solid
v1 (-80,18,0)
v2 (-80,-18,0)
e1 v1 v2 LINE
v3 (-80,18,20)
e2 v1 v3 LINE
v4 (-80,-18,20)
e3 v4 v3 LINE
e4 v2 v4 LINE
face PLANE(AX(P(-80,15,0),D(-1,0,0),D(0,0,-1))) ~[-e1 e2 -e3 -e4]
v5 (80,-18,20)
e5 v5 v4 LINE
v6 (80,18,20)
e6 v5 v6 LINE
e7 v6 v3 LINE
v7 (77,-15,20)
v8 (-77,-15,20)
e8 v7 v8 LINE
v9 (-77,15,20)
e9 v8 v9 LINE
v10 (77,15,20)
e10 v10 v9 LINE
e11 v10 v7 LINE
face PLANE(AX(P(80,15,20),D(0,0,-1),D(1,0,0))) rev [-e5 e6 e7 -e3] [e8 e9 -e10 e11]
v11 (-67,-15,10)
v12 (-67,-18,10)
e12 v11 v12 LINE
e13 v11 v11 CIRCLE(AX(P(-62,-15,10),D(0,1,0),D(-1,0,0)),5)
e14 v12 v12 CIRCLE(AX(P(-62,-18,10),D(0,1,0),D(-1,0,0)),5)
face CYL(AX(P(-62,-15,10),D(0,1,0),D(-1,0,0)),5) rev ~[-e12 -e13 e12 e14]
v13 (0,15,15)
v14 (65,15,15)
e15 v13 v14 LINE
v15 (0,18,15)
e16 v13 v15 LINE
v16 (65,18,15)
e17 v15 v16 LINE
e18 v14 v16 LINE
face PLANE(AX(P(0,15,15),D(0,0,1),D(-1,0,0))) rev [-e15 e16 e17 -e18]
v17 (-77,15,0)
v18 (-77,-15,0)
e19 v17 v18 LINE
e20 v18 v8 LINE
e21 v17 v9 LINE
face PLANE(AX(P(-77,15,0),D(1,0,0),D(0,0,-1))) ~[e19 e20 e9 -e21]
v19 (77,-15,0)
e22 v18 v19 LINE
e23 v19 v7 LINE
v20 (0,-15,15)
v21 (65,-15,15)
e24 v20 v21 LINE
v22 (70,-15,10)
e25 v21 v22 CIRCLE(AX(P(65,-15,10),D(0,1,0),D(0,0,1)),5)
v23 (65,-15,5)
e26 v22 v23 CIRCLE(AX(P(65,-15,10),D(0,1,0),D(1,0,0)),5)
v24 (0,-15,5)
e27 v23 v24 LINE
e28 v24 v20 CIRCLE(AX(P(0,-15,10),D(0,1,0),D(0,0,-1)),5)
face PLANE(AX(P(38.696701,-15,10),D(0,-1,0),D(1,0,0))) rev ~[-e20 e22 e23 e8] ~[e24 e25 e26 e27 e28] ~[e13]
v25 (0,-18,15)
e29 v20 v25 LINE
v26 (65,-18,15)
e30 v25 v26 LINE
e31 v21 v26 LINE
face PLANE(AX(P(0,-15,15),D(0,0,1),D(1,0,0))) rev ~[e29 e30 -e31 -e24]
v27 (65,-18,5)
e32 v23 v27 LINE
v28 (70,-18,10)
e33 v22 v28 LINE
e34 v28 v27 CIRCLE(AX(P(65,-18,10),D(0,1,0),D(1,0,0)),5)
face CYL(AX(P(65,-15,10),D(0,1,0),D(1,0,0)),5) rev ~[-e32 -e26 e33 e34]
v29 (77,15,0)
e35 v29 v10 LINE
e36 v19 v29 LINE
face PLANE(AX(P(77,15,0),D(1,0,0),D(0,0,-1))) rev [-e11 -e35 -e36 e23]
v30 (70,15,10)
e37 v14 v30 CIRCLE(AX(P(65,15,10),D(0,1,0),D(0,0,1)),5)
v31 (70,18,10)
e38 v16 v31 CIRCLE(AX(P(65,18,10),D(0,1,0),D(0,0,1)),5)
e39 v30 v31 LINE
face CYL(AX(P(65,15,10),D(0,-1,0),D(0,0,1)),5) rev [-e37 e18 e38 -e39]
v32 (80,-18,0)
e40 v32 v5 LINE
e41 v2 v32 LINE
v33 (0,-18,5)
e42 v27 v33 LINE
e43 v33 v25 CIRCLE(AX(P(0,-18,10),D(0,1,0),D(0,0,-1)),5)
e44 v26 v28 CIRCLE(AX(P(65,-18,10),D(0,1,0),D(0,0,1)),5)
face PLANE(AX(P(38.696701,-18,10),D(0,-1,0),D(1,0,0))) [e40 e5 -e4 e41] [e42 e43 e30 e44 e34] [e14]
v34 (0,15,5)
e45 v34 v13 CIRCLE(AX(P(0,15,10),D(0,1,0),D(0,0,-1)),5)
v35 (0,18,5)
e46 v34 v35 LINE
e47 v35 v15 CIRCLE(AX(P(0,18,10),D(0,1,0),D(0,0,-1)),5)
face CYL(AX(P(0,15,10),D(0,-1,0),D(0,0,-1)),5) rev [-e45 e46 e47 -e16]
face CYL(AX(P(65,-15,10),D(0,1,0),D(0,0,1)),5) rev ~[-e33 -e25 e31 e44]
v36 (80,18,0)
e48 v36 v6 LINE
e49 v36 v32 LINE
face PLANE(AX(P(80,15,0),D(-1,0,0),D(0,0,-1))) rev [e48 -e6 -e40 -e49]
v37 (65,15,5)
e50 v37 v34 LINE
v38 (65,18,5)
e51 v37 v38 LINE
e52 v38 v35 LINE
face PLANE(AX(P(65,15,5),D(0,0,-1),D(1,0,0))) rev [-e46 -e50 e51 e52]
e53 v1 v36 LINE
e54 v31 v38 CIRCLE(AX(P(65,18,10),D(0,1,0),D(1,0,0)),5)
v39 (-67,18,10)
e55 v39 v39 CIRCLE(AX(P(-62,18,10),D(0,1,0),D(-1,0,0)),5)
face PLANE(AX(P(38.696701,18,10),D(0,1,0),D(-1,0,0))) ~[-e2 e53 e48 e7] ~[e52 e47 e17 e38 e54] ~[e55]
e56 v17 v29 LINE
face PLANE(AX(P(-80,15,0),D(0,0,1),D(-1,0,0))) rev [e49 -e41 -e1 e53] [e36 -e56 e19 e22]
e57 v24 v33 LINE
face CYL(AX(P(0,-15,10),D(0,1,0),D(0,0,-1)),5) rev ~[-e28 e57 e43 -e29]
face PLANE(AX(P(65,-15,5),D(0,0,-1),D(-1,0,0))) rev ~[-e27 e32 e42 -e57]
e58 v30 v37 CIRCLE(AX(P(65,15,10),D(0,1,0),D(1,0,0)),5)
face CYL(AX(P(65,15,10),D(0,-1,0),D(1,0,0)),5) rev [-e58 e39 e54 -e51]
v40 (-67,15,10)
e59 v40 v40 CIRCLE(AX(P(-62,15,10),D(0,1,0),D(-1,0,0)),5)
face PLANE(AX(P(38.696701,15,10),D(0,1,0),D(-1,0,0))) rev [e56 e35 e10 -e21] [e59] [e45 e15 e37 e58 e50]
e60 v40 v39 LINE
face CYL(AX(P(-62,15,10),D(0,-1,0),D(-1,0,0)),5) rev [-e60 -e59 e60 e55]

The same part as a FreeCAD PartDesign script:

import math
import FreeCAD as App
import Part
import Sketcher

V = App.Vector
Q = App.Units.Quantity


def add_polygon(sketch, points):
    """Adds a closed chain of lines whose ends are joined by coincident constraints."""
    first, n = sketch.GeometryCount, len(points)
    for a, b in zip(points, points[1:] + points[:1]):
        sketch.addGeometry(Part.LineSegment(App.Vector(*a, 0), App.Vector(*b, 0)), False)
    for i in range(n):
        sketch.addConstraint(Sketcher.Constraint("Coincident", first + i, 2, first + (i + 1) % n, 1))

doc = App.newDocument("Part")
body = doc.addObject("PartDesign::Body", "Body")

# Sketch on XZ plane
sketch1 = doc.addObject("Sketcher::SketchObject", "Sketch")
body.addObject(sketch1)
sketch1.AttachmentSupport = (doc.XZ_Plane, [""])
sketch1.MapMode = "FlatFace"
sketch1.AttachmentOffset = App.Placement(V(0, 0, 15), App.Rotation())
add_polygon(sketch1, [(77, 20), (77, 0), (80, 0), (80, 20)])  # lines 0-3
sketch1.addConstraint([
    Sketcher.Constraint("Vertical", 0),
    Sketcher.Constraint("Horizontal", 1),
    Sketcher.Constraint("Vertical", 2),
    Sketcher.Constraint("Horizontal", 3),
    Sketcher.Constraint("PointOnObject", 0, 2, -1),
    Sketcher.Constraint("DistanceX", 1, 1, 1, 2, Q("3 mm")),
    Sketcher.Constraint("DistanceY", 0, 2, 0, 1, Q("20 mm")),
    Sketcher.Constraint("DistanceX", -1, 1, 0, 2, Q("77 mm")),
])
pad1 = doc.addObject("PartDesign::Pad", "Pad")
body.addObject(pad1)
pad1.Profile = sketch1
pad1.Length = 15
pad1.Reversed = True
body2 = doc.addObject("PartDesign::Body", "Body001")

# Sketch on XZ plane
sketch2 = doc.addObject("Sketcher::SketchObject", "Sketch001")
body2.addObject(sketch2)
sketch2.AttachmentSupport = (doc.getObject("XZ_Plane001"), [""])
sketch2.MapMode = "FlatFace"
sketch2.AttachmentOffset = App.Placement(V(0, 0, 15), App.Rotation())
add_polygon(sketch2, [(-80, 20), (-80, 0), (-77, 0), (-77, 20)])  # lines 0-3
sketch2.addConstraint([
    Sketcher.Constraint("Vertical", 0),
    Sketcher.Constraint("Horizontal", 1),
    Sketcher.Constraint("Vertical", 2),
    Sketcher.Constraint("Horizontal", 3),
    Sketcher.Constraint("PointOnObject", 0, 2, -1),
    Sketcher.Constraint("DistanceX", 1, 1, 1, 2, Q("3 mm")),
    Sketcher.Constraint("DistanceY", 0, 2, 0, 1, Q("20 mm")),
    Sketcher.Constraint("DistanceX", 0, 2, -1, 1, Q("80 mm")),
])
pad2 = doc.addObject("PartDesign::Pad", "Pad001")
body2.addObject(pad2)
pad2.Profile = sketch2
pad2.Length = 15
pad2.Reversed = True
body.AllowCompound = True
doc.recompute()

boolean = doc.addObject("PartDesign::Boolean", "Boolean")
body.addObject(boolean)
boolean.Type = "Fuse"
boolean.addObjects([body2])

# Sketch on XZ plane
sketch3 = doc.addObject("Sketcher::SketchObject", "Sketch002")
body.addObject(sketch3)
sketch3.AttachmentSupport = (doc.XZ_Plane, [""])
sketch3.MapMode = "FlatFace"
sketch3.AttachmentOffset = App.Placement(V(0, 0, 15), App.Rotation())
add_polygon(sketch3, [(-80, 20), (-80, 0), (80, 0), (80, 20)])  # lines 0-3
sketch3.addGeometry(Part.Circle(V(-62, 10, 0), V(0, 0, 1), 5), False)  # 4
sketch3.addGeometry(Part.LineSegment(V(0, 15, 0), V(65, 15, 0)), False)  # 5
sketch3.addGeometry(Part.ArcOfCircle(Part.Circle(V(65, 10, 0), V(0, 0, 1), 5), math.radians(0), math.radians(90)), False)  # 6
sketch3.addGeometry(Part.ArcOfCircle(Part.Circle(V(65, 10, 0), V(0, 0, 1), 5), math.radians(-90), math.radians(0)), False)  # 7
sketch3.addGeometry(Part.LineSegment(V(65, 5, 0), V(0, 5, 0)), False)  # 8
sketch3.addGeometry(Part.ArcOfCircle(Part.Circle(V(0, 10, 0), V(0, 0, 1), 5), math.radians(90), math.radians(270)), False)  # 9
sketch3.addConstraint([
    Sketcher.Constraint("Tangent", 5, 2, 6, 2),
    Sketcher.Constraint("Tangent", 6, 1, 7, 2),
    Sketcher.Constraint("Tangent", 7, 1, 8, 1),
    Sketcher.Constraint("Tangent", 8, 2, 9, 2),
    Sketcher.Constraint("Tangent", 9, 1, 5, 1),
    Sketcher.Constraint("Vertical", 0),
    Sketcher.Constraint("Horizontal", 1),
    Sketcher.Constraint("Vertical", 2),
    Sketcher.Constraint("Horizontal", 3),
    Sketcher.Constraint("Horizontal", 5),
    Sketcher.Constraint("Horizontal", 8),
    Sketcher.Constraint("Equal", 4, 6),
    Sketcher.Constraint("Equal", 6, 7),
    Sketcher.Constraint("Symmetric", 0, 2, 1, 2, -1, 1),
    Sketcher.Constraint("PointOnObject", 9, 3, -2),
    Sketcher.Constraint("Horizontal", 4, 3, 6, 3),
    Sketcher.Constraint("Horizontal", 9, 3, 6, 1),
    Sketcher.Constraint("Diameter", 4, Q("10 mm")),
    Sketcher.Constraint("DistanceX", 1, 1, 1, 2, Q("160 mm")),
    Sketcher.Constraint("DistanceX", 5, 1, 5, 2, Q("65 mm")),
    Sketcher.Constraint("DistanceY", 0, 2, 0, 1, Q("20 mm")),
    Sketcher.Constraint("DistanceX", 4, 3, -1, 1, Q("62 mm")),
    Sketcher.Constraint("DistanceY", -1, 1, 4, 3, Q("10 mm")),
])
pad3 = doc.addObject("PartDesign::Pad", "Pad002")
body.addObject(pad3)
pad3.Profile = sketch3
pad3.Length = 3
body3 = doc.addObject("PartDesign::Body", "Body002")
doc.recompute()

body3.BaseFeature = body
doc.recompute()

mirroring = doc.addObject("Part::Mirroring", "Mirroring")
mirroring.Source = body
mirroring.Base = V(0, 0, 0)
mirroring.Normal = V(0, -1, 0)
body4 = doc.addObject("PartDesign::Body", "Body003")
body4.BaseFeature = mirroring
boolean2 = doc.addObject("PartDesign::Boolean", "Boolean001")
body3.addObject(boolean2)
boolean2.Type = "Fuse"
boolean2.addObjects([body4])
doc.recompute()
mirroring.Visibility = False

doc.recompute()
